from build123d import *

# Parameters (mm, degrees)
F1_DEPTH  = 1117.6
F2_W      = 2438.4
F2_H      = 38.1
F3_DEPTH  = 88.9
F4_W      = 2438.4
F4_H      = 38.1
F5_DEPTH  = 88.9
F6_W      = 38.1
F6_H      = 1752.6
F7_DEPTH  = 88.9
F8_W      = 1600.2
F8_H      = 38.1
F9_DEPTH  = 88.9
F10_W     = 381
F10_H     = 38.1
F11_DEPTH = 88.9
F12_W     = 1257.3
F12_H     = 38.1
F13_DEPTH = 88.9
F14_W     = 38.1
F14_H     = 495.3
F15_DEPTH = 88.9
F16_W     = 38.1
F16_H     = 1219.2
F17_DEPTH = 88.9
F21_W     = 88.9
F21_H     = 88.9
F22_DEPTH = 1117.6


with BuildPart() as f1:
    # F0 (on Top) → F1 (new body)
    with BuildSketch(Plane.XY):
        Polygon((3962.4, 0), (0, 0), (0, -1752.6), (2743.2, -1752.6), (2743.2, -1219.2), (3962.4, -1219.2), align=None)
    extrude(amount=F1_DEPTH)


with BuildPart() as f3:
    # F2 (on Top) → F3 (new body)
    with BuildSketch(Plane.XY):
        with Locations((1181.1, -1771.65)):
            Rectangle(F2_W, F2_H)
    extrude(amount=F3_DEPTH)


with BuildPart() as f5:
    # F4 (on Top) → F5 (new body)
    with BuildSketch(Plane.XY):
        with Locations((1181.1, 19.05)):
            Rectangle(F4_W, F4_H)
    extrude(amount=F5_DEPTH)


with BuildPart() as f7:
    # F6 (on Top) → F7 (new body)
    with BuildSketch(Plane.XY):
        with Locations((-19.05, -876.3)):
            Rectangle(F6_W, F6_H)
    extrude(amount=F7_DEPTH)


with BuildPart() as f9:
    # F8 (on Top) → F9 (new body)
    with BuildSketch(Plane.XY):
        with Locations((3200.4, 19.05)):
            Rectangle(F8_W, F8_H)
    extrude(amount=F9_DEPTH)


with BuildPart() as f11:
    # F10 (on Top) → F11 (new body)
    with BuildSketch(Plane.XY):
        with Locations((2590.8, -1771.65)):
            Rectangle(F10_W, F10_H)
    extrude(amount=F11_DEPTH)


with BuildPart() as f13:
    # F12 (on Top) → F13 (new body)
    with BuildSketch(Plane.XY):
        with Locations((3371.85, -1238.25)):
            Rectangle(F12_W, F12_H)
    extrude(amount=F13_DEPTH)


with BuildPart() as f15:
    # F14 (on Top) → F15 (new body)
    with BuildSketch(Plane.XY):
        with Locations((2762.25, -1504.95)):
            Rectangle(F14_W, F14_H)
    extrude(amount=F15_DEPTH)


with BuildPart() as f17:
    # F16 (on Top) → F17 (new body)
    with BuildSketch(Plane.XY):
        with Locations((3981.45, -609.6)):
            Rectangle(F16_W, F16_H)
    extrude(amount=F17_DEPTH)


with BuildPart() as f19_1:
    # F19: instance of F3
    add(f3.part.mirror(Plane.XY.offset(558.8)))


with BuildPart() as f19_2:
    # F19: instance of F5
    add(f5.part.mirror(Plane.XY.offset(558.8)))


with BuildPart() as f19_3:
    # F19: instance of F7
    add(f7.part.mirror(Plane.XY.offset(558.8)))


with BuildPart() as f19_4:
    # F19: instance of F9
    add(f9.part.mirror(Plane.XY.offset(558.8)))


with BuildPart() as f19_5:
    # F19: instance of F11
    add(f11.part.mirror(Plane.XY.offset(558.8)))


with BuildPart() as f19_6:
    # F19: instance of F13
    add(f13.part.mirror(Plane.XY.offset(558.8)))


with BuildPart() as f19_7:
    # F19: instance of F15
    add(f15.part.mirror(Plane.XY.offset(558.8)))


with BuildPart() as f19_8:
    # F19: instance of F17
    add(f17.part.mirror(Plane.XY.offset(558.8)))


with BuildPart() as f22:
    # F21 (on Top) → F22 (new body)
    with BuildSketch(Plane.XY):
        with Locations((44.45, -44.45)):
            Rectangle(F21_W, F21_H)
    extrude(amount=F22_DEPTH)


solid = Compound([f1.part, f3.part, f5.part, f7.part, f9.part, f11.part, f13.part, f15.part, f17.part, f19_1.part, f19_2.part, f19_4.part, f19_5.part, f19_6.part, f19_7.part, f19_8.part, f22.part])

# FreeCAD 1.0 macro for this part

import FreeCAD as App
import Part
import Sketcher

V = App.Vector
Q = App.Units.Quantity


def add_polygon(sketch, points):
    """Adds a closed chain of lines whose ends are joined by coincident constraints."""
    first, n = sketch.GeometryCount, len(points)
    for a, b in zip(points, points[1:] + points[:1]):
        sketch.addGeometry(Part.LineSegment(App.Vector(*a, 0), App.Vector(*b, 0)), False)
    for i in range(n):
        sketch.addConstraint(Sketcher.Constraint("Coincident", first + i, 2, first + (i + 1) % n, 1))

doc = App.newDocument("Part")
params = doc.addObject("Spreadsheet::Sheet", "Params")
for row, (alias, value) in enumerate([
    ("sketch1_width", "156 in"),
    ("sketch1_width2", "108 in"),
    ("sketch1_height", "69 in"),
    ("pad1_length", "44 in"),
    ("sketch2_width", "96 in"),
    ("sketch2_height", "1.5 in"),
    ("pad2_length", "3.5 in"),
    ("sketch3_width", "96 in"),
    ("sketch3_height", "1.5 in"),
    ("pad3_length", "3.5 in"),
    ("sketch4_height", "69 in"),
    ("sketch4_width", "1.5 in"),
    ("pad4_length", "3.5 in"),
    ("sketch5_width", "63 in"),
    ("sketch5_height", "1.5 in"),
    ("pad5_length", "3.5 in"),
    ("sketch6_width", "15 in"),
    ("sketch6_height", "1.5 in"),
    ("pad6_length", "3.5 in"),
    ("sketch7_width", "49.5 in"),
    ("sketch7_height", "1.5 in"),
    ("pad7_length", "3.5 in"),
    ("sketch8_width", "1.5 in"),
    ("sketch8_height", "19.5 in"),
    ("pad8_length", "3.5 in"),
    ("sketch9_height", "48 in"),
    ("sketch9_width", "1.5 in"),
    ("pad9_length", "3.5 in"),
    ("sketch10_width", "3.5 in"),
    ("pad10_length", "44 in"),
], start=1):
    params.set(f"A{row}", alias)
    params.set(f"B{row}", "=" + value)
    params.setAlias(f"B{row}", alias)

body = doc.addObject("PartDesign::Body", "Body")

# Sketch on XY plane
sketch1 = body.newObject("Sketcher::SketchObject", "Sketch")
sketch1.AttachmentSupport = (doc.getObject("XY_Plane"), [""])
sketch1.MapMode = "FlatFace"
add_polygon(sketch1, [(3962.4, 0), (0, 0), (0, -1752.6), (2743.2, -1752.6), (2743.2, -1219.2), (3962.4, -1219.2)])  # lines 0-5
sketch1.addConstraint([
    Sketcher.Constraint("Horizontal", 0),
    Sketcher.Constraint("Vertical", 1),
    Sketcher.Constraint("Horizontal", 2),
    Sketcher.Constraint("Vertical", 3),
    Sketcher.Constraint("Horizontal", 4),
    Sketcher.Constraint("Vertical", 5),
    Sketcher.Constraint("Coincident", 0, 2, -1, 1),
    Sketcher.Constraint("Equal", 4, 5),
    Sketcher.Constraint("DistanceX", 0, 2, 0, 1, Q("156 in")),
    Sketcher.Constraint("DistanceX", 2, 1, 2, 2, Q("108 in")),
    Sketcher.Constraint("DistanceY", 1, 2, 1, 1, Q("69 in")),
])
sketch1.setExpression("Constraints[14]", "Params.sketch1_width")
sketch1.setExpression("Constraints[15]", "Params.sketch1_width2")
sketch1.setExpression("Constraints[16]", "Params.sketch1_height")
pad1 = body.newObject("PartDesign::Pad", "Pad")
pad1.Profile = sketch1
pad1.setExpression("Length", "Params.pad1_length")
body2 = doc.addObject("PartDesign::Body", "Body001")

# Sketch on XY plane
sketch2 = body2.newObject("Sketcher::SketchObject", "Sketch001")
sketch2.AttachmentSupport = (doc.getObject("XY_Plane001"), [""])
sketch2.MapMode = "FlatFace"
add_polygon(sketch2, [(-38.1, -1752.6), (-38.1, -1790.7), (2400.3, -1790.7), (2400.3, -1752.6)])  # lines 0-3
sketch2.addConstraint([
    Sketcher.Constraint("Vertical", 0),
    Sketcher.Constraint("Horizontal", 1),
    Sketcher.Constraint("Vertical", 2),
    Sketcher.Constraint("Horizontal", 3),
    Sketcher.Constraint("DistanceX", 1, 1, 1, 2, Q("96 in")),
    Sketcher.Constraint("DistanceY", 0, 2, 0, 1, Q("1.5 in")),
    Sketcher.Constraint("DistanceY", 2, 2, -1, 1, Q("69 in")),
    Sketcher.Constraint("DistanceX", 0, 2, -1, 1, Q("1.5 in")),
])
sketch2.setExpression("Constraints[8]", "Params.sketch2_width")
sketch2.setExpression("Constraints[9]", "Params.sketch2_height")
pad2 = body2.newObject("PartDesign::Pad", "Pad001")
pad2.Profile = sketch2
pad2.setExpression("Length", "Params.pad2_length")
body3 = doc.addObject("PartDesign::Body", "Body002")

# Sketch on XY plane
sketch3 = body3.newObject("Sketcher::SketchObject", "Sketch002")
sketch3.AttachmentSupport = (doc.getObject("XY_Plane002"), [""])
sketch3.MapMode = "FlatFace"
add_polygon(sketch3, [(-38.1, 38.1), (-38.1, 0), (2400.3, 0), (2400.3, 38.1)])  # lines 0-3
sketch3.addConstraint([
    Sketcher.Constraint("Vertical", 0),
    Sketcher.Constraint("Horizontal", 1),
    Sketcher.Constraint("Vertical", 2),
    Sketcher.Constraint("Horizontal", 3),
    Sketcher.Constraint("PointOnObject", 0, 2, -1),
    Sketcher.Constraint("DistanceX", 1, 1, 1, 2, Q("96 in")),
    Sketcher.Constraint("DistanceY", 0, 2, 0, 1, Q("1.5 in")),
    Sketcher.Constraint("DistanceX", 0, 2, -1, 1, Q("1.5 in")),
])
sketch3.setExpression("Constraints[9]", "Params.sketch3_width")
sketch3.setExpression("Constraints[10]", "Params.sketch3_height")
pad3 = body3.newObject("PartDesign::Pad", "Pad002")
pad3.Profile = sketch3
pad3.setExpression("Length", "Params.pad3_length")
body4 = doc.addObject("PartDesign::Body", "Body003")

# Sketch on XY plane
sketch4 = body4.newObject("Sketcher::SketchObject", "Sketch003")
sketch4.AttachmentSupport = (doc.getObject("XY_Plane003"), [""])
sketch4.MapMode = "FlatFace"
add_polygon(sketch4, [(-38.1, 0), (-38.1, -1752.6), (0, -1752.6), (0, 0)])  # lines 0-3
sketch4.addConstraint([
    Sketcher.Constraint("Vertical", 0),
    Sketcher.Constraint("Horizontal", 1),
    Sketcher.Constraint("Vertical", 2),
    Sketcher.Constraint("Horizontal", 3),
    Sketcher.Constraint("Coincident", 2, 2, -1, 1),
    Sketcher.Constraint("DistanceY", 0, 2, 0, 1, Q("69 in")),
    Sketcher.Constraint("DistanceX", 1, 1, 1, 2, Q("1.5 in")),
])
sketch4.setExpression("Constraints[9]", "Params.sketch4_height")
sketch4.setExpression("Constraints[10]", "Params.sketch4_width")
pad4 = body4.newObject("PartDesign::Pad", "Pad003")
pad4.Profile = sketch4
pad4.setExpression("Length", "Params.pad4_length")
body5 = doc.addObject("PartDesign::Body", "Body004")

# Sketch on XY plane
sketch5 = body5.newObject("Sketcher::SketchObject", "Sketch004")
sketch5.AttachmentSupport = (doc.getObject("XY_Plane004"), [""])
sketch5.MapMode = "FlatFace"
add_polygon(sketch5, [(2400.3, 38.1), (2400.3, 0), (4000.5, 0), (4000.5, 38.1)])  # lines 0-3
sketch5.addConstraint([
    Sketcher.Constraint("Vertical", 0),
    Sketcher.Constraint("Horizontal", 1),
    Sketcher.Constraint("Vertical", 2),
    Sketcher.Constraint("Horizontal", 3),
    Sketcher.Constraint("PointOnObject", 0, 2, -1),
    Sketcher.Constraint("DistanceX", 1, 1, 1, 2, Q("63 in")),
    Sketcher.Constraint("DistanceY", 0, 2, 0, 1, Q("1.5 in")),
    Sketcher.Constraint("DistanceX", -1, 1, 0, 2, Q("94.5 in")),
])
sketch5.setExpression("Constraints[9]", "Params.sketch5_width")
sketch5.setExpression("Constraints[10]", "Params.sketch5_height")
pad5 = body5.newObject("PartDesign::Pad", "Pad004")
pad5.Profile = sketch5
pad5.setExpression("Length", "Params.pad5_length")
body6 = doc.addObject("PartDesign::Body", "Body005")

# Sketch on XY plane
sketch6 = body6.newObject("Sketcher::SketchObject", "Sketch005")
sketch6.AttachmentSupport = (doc.getObject("XY_Plane005"), [""])
sketch6.MapMode = "FlatFace"
add_polygon(sketch6, [(2400.3, -1752.6), (2400.3, -1790.7), (2781.3, -1790.7), (2781.3, -1752.6)])  # lines 0-3
sketch6.addConstraint([
    Sketcher.Constraint("Vertical", 0),
    Sketcher.Constraint("Horizontal", 1),
    Sketcher.Constraint("Vertical", 2),
    Sketcher.Constraint("Horizontal", 3),
    Sketcher.Constraint("DistanceX", 1, 1, 1, 2, Q("15 in")),
    Sketcher.Constraint("DistanceY", 0, 2, 0, 1, Q("1.5 in")),
    Sketcher.Constraint("DistanceY", 2, 2, -1, 1, Q("69 in")),
    Sketcher.Constraint("DistanceX", -1, 1, 0, 2, Q("94.5 in")),
])
sketch6.setExpression("Constraints[8]", "Params.sketch6_width")
sketch6.setExpression("Constraints[9]", "Params.sketch6_height")
pad6 = body6.newObject("PartDesign::Pad", "Pad005")
pad6.Profile = sketch6
pad6.setExpression("Length", "Params.pad6_length")
body7 = doc.addObject("PartDesign::Body", "Body006")

# Sketch on XY plane
sketch7 = body7.newObject("Sketcher::SketchObject", "Sketch006")
sketch7.AttachmentSupport = (doc.getObject("XY_Plane006"), [""])
sketch7.MapMode = "FlatFace"
add_polygon(sketch7, [(2743.2, -1219.2), (2743.2, -1257.3), (4000.5, -1257.3), (4000.5, -1219.2)])  # lines 0-3
sketch7.addConstraint([
    Sketcher.Constraint("Vertical", 0),
    Sketcher.Constraint("Horizontal", 1),
    Sketcher.Constraint("Vertical", 2),
    Sketcher.Constraint("Horizontal", 3),
    Sketcher.Constraint("DistanceX", 1, 1, 1, 2, Q("49.5 in")),
    Sketcher.Constraint("DistanceY", 0, 2, 0, 1, Q("1.5 in")),
    Sketcher.Constraint("DistanceX", -1, 1, 0, 2, Q("108 in")),
    Sketcher.Constraint("DistanceY", 2, 2, -1, 1, Q("48 in")),
])
sketch7.setExpression("Constraints[8]", "Params.sketch7_width")
sketch7.setExpression("Constraints[9]", "Params.sketch7_height")
pad7 = body7.newObject("PartDesign::Pad", "Pad006")
pad7.Profile = sketch7
pad7.setExpression("Length", "Params.pad7_length")
body8 = doc.addObject("PartDesign::Body", "Body007")

# Sketch on XY plane
sketch8 = body8.newObject("Sketcher::SketchObject", "Sketch007")
sketch8.AttachmentSupport = (doc.getObject("XY_Plane007"), [""])
sketch8.MapMode = "FlatFace"
add_polygon(sketch8, [(2743.2, -1257.3), (2743.2, -1752.6), (2781.3, -1752.6), (2781.3, -1257.3)])  # lines 0-3
sketch8.addConstraint([
    Sketcher.Constraint("Vertical", 0),
    Sketcher.Constraint("Horizontal", 1),
    Sketcher.Constraint("Vertical", 2),
    Sketcher.Constraint("Horizontal", 3),
    Sketcher.Constraint("DistanceX", 1, 1, 1, 2, Q("1.5 in")),
    Sketcher.Constraint("DistanceY", 0, 2, 0, 1, Q("19.5 in")),
    Sketcher.Constraint("DistanceX", -1, 1, 0, 2, Q("108 in")),
    Sketcher.Constraint("DistanceY", 0, 2, -1, 1, Q("69 in")),
])
sketch8.setExpression("Constraints[8]", "Params.sketch8_width")
sketch8.setExpression("Constraints[9]", "Params.sketch8_height")
pad8 = body8.newObject("PartDesign::Pad", "Pad007")
pad8.Profile = sketch8
pad8.setExpression("Length", "Params.pad8_length")
body9 = doc.addObject("PartDesign::Body", "Body008")

# Sketch on XY plane
sketch9 = body9.newObject("Sketcher::SketchObject", "Sketch008")
sketch9.AttachmentSupport = (doc.getObject("XY_Plane008"), [""])
sketch9.MapMode = "FlatFace"
add_polygon(sketch9, [(3962.4, 0), (3962.4, -1219.2), (4000.5, -1219.2), (4000.5, 0)])  # lines 0-3
sketch9.addConstraint([
    Sketcher.Constraint("Vertical", 0),
    Sketcher.Constraint("Horizontal", 1),
    Sketcher.Constraint("Vertical", 2),
    Sketcher.Constraint("Horizontal", 3),
    Sketcher.Constraint("PointOnObject", 2, 2, -1),
    Sketcher.Constraint("DistanceY", 0, 2, 0, 1, Q("48 in")),
    Sketcher.Constraint("DistanceX", 1, 1, 1, 2, Q("1.5 in")),
    Sketcher.Constraint("DistanceX", -1, 1, 0, 2, Q("156 in")),
])
sketch9.setExpression("Constraints[9]", "Params.sketch9_height")
sketch9.setExpression("Constraints[10]", "Params.sketch9_width")
pad9 = body9.newObject("PartDesign::Pad", "Pad008")
pad9.Profile = sketch9
pad9.setExpression("Length", "Params.pad9_length")
body10 = doc.addObject("PartDesign::Body", "Body009")
doc.recompute()

mirroring = doc.addObject("Part::Mirroring", "Mirroring")
mirroring.Source = body2
mirroring.Base = V(0, 0, 558.8)
mirroring.Normal = V(0, 0, 1)
body10.BaseFeature = mirroring
doc.recompute()
body11 = doc.addObject("PartDesign::Body", "Body010")
doc.recompute()

mirroring2 = doc.addObject("Part::Mirroring", "Mirroring001")
mirroring2.Source = body3
mirroring2.Base = V(0, 0, 558.8)
mirroring2.Normal = V(0, 0, 1)
body11.BaseFeature = mirroring2
doc.recompute()
body12 = doc.addObject("PartDesign::Body", "Body011")
doc.recompute()

mirroring3 = doc.addObject("Part::Mirroring", "Mirroring002")
mirroring3.Source = body4
mirroring3.Base = V(0, 0, 558.8)
mirroring3.Normal = V(0, 0, 1)
body12.BaseFeature = mirroring3
doc.recompute()
body13 = doc.addObject("PartDesign::Body", "Body012")
doc.recompute()

mirroring4 = doc.addObject("Part::Mirroring", "Mirroring003")
mirroring4.Source = body5
mirroring4.Base = V(0, 0, 558.8)
mirroring4.Normal = V(0, 0, 1)
body13.BaseFeature = mirroring4
doc.recompute()
body14 = doc.addObject("PartDesign::Body", "Body013")
doc.recompute()

mirroring5 = doc.addObject("Part::Mirroring", "Mirroring004")
mirroring5.Source = body6
mirroring5.Base = V(0, 0, 558.8)
mirroring5.Normal = V(0, 0, 1)
body14.BaseFeature = mirroring5
doc.recompute()
body15 = doc.addObject("PartDesign::Body", "Body014")
doc.recompute()

mirroring6 = doc.addObject("Part::Mirroring", "Mirroring005")
mirroring6.Source = body7
mirroring6.Base = V(0, 0, 558.8)
mirroring6.Normal = V(0, 0, 1)
body15.BaseFeature = mirroring6
doc.recompute()
body16 = doc.addObject("PartDesign::Body", "Body015")
doc.recompute()

mirroring7 = doc.addObject("Part::Mirroring", "Mirroring006")
mirroring7.Source = body8
mirroring7.Base = V(0, 0, 558.8)
mirroring7.Normal = V(0, 0, 1)
body16.BaseFeature = mirroring7
doc.recompute()
body17 = doc.addObject("PartDesign::Body", "Body016")
doc.recompute()

mirroring8 = doc.addObject("Part::Mirroring", "Mirroring007")
mirroring8.Source = body9
mirroring8.Base = V(0, 0, 558.8)
mirroring8.Normal = V(0, 0, 1)
body17.BaseFeature = mirroring8
doc.recompute()
body18 = doc.addObject("PartDesign::Body", "Body017")

# Sketch on XY plane
sketch10 = body18.newObject("Sketcher::SketchObject", "Sketch009")
sketch10.AttachmentSupport = (doc.getObject("XY_Plane017"), [""])
sketch10.MapMode = "FlatFace"
add_polygon(sketch10, [(0, 0), (0, -88.9), (88.9, -88.9), (88.9, 0)])  # lines 0-3
sketch10.addConstraint([
    Sketcher.Constraint("Vertical", 0),
    Sketcher.Constraint("Horizontal", 1),
    Sketcher.Constraint("Vertical", 2),
    Sketcher.Constraint("Horizontal", 3),
    Sketcher.Constraint("Coincident", 3, 2, -1, 1),
    Sketcher.Constraint("Equal", 3, 0),
    Sketcher.Constraint("DistanceX", 1, 1, 1, 2, Q("3.5 in")),
])
sketch10.setExpression("Constraints[10]", "Params.sketch10_width")
pad10 = body18.newObject("PartDesign::Pad", "Pad009")
pad10.Profile = sketch10
pad10.setExpression("Length", "Params.pad10_length")

doc.recompute()
